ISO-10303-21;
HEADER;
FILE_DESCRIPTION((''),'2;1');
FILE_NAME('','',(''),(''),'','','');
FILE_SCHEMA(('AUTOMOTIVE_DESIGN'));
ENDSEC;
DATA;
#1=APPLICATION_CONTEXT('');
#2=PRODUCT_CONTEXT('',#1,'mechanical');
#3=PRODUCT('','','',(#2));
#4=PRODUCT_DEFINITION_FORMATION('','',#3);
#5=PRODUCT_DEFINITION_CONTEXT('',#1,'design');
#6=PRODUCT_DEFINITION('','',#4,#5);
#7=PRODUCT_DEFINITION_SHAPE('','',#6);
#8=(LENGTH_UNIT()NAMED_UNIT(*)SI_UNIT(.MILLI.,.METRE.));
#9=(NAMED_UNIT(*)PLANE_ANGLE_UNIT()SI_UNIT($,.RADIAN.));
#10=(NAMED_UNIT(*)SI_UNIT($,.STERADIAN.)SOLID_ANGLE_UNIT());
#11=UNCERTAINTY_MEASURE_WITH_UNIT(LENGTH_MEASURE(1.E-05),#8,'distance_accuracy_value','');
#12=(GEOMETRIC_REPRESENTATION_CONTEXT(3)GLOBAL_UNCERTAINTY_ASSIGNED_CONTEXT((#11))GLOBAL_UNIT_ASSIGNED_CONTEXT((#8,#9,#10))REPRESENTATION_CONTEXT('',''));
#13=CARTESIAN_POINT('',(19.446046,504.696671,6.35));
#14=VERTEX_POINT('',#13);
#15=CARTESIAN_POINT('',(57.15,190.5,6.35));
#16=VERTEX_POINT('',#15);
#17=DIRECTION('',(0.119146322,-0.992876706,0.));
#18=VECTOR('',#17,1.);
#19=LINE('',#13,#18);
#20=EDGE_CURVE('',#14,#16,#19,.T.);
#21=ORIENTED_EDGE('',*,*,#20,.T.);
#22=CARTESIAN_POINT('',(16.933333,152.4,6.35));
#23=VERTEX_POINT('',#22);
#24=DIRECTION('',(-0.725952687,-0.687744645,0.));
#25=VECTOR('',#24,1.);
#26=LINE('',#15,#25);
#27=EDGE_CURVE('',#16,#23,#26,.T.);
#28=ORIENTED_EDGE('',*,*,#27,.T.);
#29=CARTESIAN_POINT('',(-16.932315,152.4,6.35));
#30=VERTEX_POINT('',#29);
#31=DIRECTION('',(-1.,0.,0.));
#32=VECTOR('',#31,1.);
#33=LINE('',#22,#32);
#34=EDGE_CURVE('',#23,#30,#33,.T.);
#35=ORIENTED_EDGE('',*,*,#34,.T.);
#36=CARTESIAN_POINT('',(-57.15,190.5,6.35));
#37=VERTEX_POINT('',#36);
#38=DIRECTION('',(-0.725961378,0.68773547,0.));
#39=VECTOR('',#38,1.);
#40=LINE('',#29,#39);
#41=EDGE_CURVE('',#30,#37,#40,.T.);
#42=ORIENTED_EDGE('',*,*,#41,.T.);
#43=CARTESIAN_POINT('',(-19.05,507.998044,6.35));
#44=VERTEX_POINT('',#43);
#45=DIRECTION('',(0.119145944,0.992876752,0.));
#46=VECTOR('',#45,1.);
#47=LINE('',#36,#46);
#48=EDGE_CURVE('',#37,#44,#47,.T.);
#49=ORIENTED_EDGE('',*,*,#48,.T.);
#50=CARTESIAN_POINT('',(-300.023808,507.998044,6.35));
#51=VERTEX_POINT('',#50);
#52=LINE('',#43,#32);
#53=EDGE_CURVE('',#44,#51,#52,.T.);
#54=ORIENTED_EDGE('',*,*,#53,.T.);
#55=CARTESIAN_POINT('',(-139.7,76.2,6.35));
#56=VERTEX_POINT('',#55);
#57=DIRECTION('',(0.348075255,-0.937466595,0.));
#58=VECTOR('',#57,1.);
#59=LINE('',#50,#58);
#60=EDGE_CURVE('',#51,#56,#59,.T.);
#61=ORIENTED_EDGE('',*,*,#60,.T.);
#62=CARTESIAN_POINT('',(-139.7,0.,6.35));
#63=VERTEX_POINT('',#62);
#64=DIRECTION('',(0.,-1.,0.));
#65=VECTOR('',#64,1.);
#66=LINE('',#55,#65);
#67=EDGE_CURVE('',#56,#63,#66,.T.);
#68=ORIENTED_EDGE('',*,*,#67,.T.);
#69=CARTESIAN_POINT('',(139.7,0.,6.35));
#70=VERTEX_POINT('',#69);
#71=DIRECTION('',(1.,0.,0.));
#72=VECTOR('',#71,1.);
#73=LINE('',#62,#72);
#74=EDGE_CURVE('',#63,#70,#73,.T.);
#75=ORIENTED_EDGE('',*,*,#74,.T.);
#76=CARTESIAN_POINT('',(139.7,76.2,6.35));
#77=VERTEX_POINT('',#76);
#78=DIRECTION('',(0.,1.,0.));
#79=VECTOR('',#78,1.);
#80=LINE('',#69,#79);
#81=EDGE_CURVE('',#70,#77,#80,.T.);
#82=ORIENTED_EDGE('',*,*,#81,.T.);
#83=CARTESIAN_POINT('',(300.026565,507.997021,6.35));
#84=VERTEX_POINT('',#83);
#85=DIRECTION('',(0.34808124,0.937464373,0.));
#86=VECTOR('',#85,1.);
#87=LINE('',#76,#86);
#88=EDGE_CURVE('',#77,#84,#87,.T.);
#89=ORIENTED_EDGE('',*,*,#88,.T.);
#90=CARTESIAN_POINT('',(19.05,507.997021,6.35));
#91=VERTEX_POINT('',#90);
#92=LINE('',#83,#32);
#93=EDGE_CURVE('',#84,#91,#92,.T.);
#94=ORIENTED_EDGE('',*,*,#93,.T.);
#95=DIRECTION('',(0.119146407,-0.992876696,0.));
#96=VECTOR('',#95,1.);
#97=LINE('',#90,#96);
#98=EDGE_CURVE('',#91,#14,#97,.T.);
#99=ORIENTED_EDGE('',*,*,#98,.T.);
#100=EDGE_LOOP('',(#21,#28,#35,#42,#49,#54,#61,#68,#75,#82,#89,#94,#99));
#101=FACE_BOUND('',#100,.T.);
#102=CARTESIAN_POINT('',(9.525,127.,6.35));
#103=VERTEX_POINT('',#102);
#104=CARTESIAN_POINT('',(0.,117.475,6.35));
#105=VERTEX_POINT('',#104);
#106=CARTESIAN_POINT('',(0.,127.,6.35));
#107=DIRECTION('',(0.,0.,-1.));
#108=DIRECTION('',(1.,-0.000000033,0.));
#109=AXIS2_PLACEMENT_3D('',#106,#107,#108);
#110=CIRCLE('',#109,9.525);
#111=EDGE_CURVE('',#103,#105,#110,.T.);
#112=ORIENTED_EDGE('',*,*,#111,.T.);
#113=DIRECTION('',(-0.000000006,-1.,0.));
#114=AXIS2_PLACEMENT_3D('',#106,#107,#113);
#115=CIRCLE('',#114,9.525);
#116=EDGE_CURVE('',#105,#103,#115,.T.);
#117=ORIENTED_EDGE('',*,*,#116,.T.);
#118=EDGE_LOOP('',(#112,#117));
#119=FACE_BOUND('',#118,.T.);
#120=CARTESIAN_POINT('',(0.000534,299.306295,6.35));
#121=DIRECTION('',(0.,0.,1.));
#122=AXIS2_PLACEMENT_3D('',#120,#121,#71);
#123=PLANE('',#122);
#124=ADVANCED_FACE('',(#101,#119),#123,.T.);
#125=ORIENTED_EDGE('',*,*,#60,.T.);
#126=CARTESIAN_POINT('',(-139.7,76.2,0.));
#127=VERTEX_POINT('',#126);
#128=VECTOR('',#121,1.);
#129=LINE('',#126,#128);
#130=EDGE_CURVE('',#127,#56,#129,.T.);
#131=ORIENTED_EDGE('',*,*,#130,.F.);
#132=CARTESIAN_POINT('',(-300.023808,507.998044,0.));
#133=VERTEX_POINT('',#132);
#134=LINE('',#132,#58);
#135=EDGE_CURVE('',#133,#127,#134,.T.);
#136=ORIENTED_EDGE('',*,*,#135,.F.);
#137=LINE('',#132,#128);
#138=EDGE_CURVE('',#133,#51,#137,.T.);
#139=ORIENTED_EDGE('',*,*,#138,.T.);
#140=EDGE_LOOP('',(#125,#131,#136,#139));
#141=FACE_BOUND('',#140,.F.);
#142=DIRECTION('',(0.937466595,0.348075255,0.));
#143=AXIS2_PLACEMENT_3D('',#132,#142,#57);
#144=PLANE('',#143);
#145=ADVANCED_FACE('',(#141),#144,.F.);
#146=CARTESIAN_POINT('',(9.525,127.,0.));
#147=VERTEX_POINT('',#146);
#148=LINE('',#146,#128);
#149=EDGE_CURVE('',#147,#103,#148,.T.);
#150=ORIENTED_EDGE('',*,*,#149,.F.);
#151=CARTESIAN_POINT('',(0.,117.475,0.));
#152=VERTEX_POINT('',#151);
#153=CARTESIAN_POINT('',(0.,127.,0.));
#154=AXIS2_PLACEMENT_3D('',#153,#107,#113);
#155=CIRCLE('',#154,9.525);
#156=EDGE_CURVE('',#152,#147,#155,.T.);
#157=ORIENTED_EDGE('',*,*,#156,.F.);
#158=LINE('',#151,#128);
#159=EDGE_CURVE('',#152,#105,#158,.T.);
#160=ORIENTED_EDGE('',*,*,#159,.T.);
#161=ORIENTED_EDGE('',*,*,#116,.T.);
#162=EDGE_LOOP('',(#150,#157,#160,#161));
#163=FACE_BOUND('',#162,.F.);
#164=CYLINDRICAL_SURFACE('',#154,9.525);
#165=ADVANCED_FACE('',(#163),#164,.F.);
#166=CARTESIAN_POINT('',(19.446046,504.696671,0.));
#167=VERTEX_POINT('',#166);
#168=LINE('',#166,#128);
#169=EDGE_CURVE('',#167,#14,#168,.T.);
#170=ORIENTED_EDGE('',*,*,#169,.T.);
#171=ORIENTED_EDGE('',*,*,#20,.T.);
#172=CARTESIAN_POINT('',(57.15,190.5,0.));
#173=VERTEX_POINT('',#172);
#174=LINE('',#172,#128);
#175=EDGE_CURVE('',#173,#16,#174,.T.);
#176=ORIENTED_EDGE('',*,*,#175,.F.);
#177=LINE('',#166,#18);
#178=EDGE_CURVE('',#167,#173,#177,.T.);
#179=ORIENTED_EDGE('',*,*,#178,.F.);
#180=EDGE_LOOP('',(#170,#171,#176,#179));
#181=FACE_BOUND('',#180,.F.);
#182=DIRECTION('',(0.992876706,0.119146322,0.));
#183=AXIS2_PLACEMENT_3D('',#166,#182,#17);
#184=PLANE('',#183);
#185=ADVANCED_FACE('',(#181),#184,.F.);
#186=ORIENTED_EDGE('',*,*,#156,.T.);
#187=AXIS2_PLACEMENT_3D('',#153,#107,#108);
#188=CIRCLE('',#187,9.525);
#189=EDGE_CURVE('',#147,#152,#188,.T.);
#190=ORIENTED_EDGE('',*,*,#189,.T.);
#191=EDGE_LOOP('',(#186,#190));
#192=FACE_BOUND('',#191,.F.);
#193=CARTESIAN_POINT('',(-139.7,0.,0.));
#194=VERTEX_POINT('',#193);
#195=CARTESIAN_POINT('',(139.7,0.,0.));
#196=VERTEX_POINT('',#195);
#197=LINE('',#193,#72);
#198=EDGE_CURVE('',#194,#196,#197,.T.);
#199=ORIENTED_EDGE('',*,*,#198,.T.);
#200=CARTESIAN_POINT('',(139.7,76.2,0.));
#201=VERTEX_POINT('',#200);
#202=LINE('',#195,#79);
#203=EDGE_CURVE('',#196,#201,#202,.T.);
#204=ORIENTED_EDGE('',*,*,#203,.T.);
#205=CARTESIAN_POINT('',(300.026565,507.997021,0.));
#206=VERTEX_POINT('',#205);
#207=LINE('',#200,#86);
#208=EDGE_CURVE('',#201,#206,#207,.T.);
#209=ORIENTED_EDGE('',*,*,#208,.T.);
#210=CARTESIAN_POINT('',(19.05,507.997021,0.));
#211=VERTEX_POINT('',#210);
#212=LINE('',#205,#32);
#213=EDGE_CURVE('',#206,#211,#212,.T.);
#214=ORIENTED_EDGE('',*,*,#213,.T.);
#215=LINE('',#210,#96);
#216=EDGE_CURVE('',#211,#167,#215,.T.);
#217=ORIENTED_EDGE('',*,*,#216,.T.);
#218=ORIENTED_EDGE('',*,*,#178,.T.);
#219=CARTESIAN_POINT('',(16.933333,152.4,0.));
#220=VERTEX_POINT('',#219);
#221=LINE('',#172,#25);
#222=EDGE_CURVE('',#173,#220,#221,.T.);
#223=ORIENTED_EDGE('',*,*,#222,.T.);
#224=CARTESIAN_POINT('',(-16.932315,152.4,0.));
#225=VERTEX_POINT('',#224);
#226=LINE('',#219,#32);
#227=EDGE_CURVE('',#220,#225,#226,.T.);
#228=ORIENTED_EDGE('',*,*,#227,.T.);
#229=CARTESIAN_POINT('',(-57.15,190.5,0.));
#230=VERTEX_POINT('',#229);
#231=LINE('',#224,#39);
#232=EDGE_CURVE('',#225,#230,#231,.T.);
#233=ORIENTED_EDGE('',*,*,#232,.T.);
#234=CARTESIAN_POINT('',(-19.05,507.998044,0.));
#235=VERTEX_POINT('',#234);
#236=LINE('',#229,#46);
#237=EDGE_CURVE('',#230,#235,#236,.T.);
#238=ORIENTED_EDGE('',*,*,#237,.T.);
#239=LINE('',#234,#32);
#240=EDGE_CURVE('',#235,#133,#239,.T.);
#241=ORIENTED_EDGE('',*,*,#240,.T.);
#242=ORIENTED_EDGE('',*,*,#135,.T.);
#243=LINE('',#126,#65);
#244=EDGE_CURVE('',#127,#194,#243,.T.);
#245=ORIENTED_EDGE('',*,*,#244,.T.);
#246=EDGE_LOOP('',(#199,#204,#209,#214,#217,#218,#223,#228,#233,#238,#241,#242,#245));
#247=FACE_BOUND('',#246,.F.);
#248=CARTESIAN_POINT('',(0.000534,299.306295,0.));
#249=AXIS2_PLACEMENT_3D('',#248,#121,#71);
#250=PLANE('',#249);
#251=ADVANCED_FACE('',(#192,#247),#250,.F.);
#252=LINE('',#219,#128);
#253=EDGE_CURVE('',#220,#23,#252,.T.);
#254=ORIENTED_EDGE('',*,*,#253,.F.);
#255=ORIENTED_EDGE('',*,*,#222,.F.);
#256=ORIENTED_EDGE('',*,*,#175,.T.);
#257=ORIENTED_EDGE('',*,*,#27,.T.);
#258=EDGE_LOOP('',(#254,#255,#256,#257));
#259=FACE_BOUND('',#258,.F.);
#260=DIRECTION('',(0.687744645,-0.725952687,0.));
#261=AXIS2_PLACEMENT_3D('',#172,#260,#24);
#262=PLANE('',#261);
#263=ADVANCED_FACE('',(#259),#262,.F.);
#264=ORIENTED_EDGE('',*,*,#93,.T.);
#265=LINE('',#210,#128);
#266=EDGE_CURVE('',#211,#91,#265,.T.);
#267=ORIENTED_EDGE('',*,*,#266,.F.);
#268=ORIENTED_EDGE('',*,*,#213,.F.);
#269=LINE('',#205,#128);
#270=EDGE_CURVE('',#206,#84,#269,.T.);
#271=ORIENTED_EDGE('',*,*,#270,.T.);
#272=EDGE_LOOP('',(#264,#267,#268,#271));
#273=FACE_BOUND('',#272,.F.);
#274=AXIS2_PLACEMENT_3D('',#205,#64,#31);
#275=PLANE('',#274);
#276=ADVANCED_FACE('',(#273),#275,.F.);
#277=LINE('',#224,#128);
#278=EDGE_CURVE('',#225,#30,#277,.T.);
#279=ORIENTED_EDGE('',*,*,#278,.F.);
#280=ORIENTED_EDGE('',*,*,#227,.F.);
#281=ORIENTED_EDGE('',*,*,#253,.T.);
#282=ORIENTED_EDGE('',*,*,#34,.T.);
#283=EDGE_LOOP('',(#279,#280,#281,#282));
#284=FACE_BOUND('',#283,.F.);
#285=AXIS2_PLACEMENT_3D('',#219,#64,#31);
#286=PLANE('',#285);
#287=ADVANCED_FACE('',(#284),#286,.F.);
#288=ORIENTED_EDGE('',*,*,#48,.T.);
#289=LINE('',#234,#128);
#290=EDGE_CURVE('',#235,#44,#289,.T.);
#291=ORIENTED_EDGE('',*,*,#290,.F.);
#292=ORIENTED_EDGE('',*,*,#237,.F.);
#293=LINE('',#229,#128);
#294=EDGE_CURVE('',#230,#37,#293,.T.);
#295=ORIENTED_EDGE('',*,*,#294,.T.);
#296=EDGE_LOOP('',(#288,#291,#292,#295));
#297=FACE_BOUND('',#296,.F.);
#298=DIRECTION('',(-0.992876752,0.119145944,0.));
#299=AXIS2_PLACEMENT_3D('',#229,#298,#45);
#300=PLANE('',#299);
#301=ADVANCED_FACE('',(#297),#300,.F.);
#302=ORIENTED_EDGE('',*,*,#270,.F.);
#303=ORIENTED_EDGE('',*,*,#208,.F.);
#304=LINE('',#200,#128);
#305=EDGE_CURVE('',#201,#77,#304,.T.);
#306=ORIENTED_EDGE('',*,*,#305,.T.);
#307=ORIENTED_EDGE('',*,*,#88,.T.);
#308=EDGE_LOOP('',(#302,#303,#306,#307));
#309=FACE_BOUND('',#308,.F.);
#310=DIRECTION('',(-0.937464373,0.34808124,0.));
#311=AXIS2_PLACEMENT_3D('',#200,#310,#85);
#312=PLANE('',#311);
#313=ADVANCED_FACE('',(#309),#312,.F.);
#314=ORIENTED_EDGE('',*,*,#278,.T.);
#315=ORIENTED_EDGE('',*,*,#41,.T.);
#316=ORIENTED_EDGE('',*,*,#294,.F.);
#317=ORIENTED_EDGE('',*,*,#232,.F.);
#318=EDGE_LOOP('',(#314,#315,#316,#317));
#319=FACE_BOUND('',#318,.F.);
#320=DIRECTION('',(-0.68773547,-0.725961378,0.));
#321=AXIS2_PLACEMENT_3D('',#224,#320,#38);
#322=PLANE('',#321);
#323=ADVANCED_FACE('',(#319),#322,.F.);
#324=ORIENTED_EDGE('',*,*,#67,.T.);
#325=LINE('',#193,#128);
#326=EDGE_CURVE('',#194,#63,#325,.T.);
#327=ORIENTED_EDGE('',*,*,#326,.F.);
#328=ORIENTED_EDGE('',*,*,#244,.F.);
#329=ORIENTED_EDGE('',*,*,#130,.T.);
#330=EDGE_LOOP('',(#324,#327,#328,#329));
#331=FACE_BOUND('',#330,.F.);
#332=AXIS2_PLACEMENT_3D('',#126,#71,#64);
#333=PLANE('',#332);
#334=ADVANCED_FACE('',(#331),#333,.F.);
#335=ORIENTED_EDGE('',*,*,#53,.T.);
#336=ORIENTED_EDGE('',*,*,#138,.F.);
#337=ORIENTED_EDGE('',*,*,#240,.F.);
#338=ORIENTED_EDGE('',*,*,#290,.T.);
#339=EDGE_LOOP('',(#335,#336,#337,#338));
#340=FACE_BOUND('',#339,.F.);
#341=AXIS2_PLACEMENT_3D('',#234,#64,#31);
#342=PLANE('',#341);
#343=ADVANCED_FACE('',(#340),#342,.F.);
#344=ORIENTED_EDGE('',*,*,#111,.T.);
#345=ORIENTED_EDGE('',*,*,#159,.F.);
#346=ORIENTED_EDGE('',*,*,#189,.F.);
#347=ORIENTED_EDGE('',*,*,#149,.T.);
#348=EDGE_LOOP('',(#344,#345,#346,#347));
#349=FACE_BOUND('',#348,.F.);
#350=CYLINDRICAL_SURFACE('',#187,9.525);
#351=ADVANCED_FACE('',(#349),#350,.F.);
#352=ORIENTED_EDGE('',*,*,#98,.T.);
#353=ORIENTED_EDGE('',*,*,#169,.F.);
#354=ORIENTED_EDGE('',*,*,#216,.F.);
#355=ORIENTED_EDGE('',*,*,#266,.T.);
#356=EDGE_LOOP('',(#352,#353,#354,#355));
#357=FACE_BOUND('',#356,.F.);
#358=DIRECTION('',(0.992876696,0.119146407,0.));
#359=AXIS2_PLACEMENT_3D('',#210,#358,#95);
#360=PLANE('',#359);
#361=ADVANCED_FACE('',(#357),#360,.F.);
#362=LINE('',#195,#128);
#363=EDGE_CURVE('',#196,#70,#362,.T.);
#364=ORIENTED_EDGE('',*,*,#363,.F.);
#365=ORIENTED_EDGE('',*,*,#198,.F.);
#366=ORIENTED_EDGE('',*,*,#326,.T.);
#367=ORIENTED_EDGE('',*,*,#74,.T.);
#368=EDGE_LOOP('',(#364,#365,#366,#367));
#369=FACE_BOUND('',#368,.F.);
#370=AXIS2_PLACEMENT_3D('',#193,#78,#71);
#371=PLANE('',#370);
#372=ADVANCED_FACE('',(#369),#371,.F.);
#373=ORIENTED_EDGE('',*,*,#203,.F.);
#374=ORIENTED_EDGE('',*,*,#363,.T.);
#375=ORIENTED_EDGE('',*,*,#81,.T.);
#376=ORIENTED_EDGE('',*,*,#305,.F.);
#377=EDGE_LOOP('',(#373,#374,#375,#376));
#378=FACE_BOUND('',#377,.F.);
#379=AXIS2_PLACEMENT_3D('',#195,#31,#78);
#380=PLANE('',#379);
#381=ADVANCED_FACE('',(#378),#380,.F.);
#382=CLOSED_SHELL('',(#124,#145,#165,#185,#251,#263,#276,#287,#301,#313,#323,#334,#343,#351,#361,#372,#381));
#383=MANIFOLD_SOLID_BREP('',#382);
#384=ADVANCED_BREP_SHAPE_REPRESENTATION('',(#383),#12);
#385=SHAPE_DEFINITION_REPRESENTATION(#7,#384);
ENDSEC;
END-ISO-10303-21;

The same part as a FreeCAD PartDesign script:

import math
import FreeCAD as App
import Part
import Sketcher
from FreeCAD import Vector
Q = App.Units.Quantity

doc = App.newDocument("Part")
params = doc.addObject("Spreadsheet::Sheet", "Params")
for row, (alias, value) in enumerate([
    ("sketch1_width", "11 in"),
    ("sketch1_height", "3 in"),
    ("sketch1_radius", "0.375 in"),
    ("pad1_length", "0.25 in"),
], start=1):
    params.set(f"A{row}", alias)
    params.set(f"B{row}", "=" + value)
    params.setAlias(f"B{row}", alias)

body = doc.addObject("PartDesign::Body", "Body")

# Sketch on XY plane
sketch1 = doc.addObject("Sketcher::SketchObject", "Sketch")
body.addObject(sketch1)
sketch1.AttachmentSupport = (doc.XY_Plane, [""])
sketch1.MapMode = "FlatFace"
sketch1.addGeometry([
    Part.LineSegment(Vector(-139.7, 0, 0), Vector(139.7, 0, 0)),  # 0
    Part.LineSegment(Vector(139.7, 0, 0), Vector(139.7, 76.2, 0)),  # 1
    Part.LineSegment(Vector(139.7, 76.2, 0), Vector(300.026565, 507.997021, 0)),  # 2
    Part.LineSegment(Vector(300.026565, 507.997021, 0), Vector(19.05, 507.997021, 0)),  # 3
    Part.LineSegment(Vector(19.05, 507.997021, 0), Vector(19.446046, 504.696671, 0)),  # 4
    Part.LineSegment(Vector(19.446046, 504.696671, 0), Vector(57.15, 190.5, 0)),  # 5
    Part.LineSegment(Vector(57.15, 190.5, 0), Vector(16.933333, 152.4, 0)),  # 6
    Part.LineSegment(Vector(16.933333, 152.4, 0), Vector(-16.932315, 152.4, 0)),  # 7
    Part.LineSegment(Vector(-16.932315, 152.4, 0), Vector(-57.15, 190.5, 0)),  # 8
    Part.LineSegment(Vector(-57.15, 190.5, 0), Vector(-19.05, 507.998044, 0)),  # 9
    Part.LineSegment(Vector(-19.05, 507.998044, 0), Vector(-300.023808, 507.998044, 0)),  # 10
    Part.LineSegment(Vector(-300.023808, 507.998044, 0), Vector(-139.7, 76.2, 0)),  # 11
    Part.LineSegment(Vector(-139.7, 76.2, 0), Vector(-139.7, 0, 0)),  # 12
    Part.ArcOfCircle(Part.Circle(Vector(0, 127, 0), Vector(0, 0, 1), 9.525), math.radians(0), math.radians(270)),  # 13
    Part.ArcOfCircle(Part.Circle(Vector(0, 127, 0), Vector(0, 0, 1), 9.525), math.radians(-89.999998), math.radians(-0.000002)),  # 14
], False)
sketch1.addConstraint([
    Sketcher.Constraint("Coincident", 0, 2, 1, 1),
    Sketcher.Constraint("Coincident", 1, 2, 2, 1),
    Sketcher.Constraint("Coincident", 2, 2, 3, 1),
    Sketcher.Constraint("Coincident", 3, 2, 4, 1),
    Sketcher.Constraint("Coincident", 4, 2, 5, 1),
    Sketcher.Constraint("Coincident", 5, 2, 6, 1),
    Sketcher.Constraint("Coincident", 6, 2, 7, 1),
    Sketcher.Constraint("Coincident", 7, 2, 8, 1),
    Sketcher.Constraint("Coincident", 8, 2, 9, 1),
    Sketcher.Constraint("Coincident", 9, 2, 10, 1),
    Sketcher.Constraint("Coincident", 10, 2, 11, 1),
    Sketcher.Constraint("Coincident", 11, 2, 12, 1),
    Sketcher.Constraint("Coincident", 12, 2, 0, 1),
    Sketcher.Constraint("Tangent", 13, 1, 14, 2),
    Sketcher.Constraint("Coincident", 14, 1, 13, 2),
    Sketcher.Constraint("Horizontal", 0),
    Sketcher.Constraint("Vertical", 1),
    Sketcher.Constraint("Horizontal", 3),
    Sketcher.Constraint("Horizontal", 7),
    Sketcher.Constraint("Horizontal", 10),
    Sketcher.Constraint("Vertical", 12),
    Sketcher.Constraint("Symmetric", 0, 2, 12, 2, -1, 1),
    Sketcher.Constraint("Symmetric", 5, 2, 8, 2, -2),
    Sketcher.Constraint("PointOnObject", 13, 3, -2),
    Sketcher.Constraint("PointOnObject", 14, 1, -2),
    Sketcher.Constraint("Parallel", 4, 5),
    Sketcher.Constraint("Horizontal", 1, 2, 11, 2),
    Sketcher.Constraint("Horizontal", 14, 3, 13, 1),
    Sketcher.Constraint("Equal", 2, 11),
    Sketcher.Constraint("DistanceX", 0, 1, 0, 2, Q("11 in")),
    Sketcher.Constraint("DistanceY", 1, 1, 1, 2, Q("3 in")),
    Sketcher.Constraint("DistanceY", -1, 1, 13, 3, Q("5 in")),
    Sketcher.Constraint("DistanceY", -1, 1, 6, 2, Q("6 in")),
    Sketcher.Constraint("Radius", 13, Q("0.375 in")),
    Sketcher.Constraint("DistanceX", 9, 2, 5, 2, Q("3 in")),
    Sketcher.Constraint("DistanceY", -1, 1, 5, 2, Q("7.5 in")),
    Sketcher.Constraint("DistanceX", 8, 2, 5, 2, Q("4.5 in")),
    Sketcher.Constraint("DistanceX", 9, 2, 3, 2, Q("1.5 in")),
    Sketcher.Constraint("Angle", 2, Q("69.63 deg")),
    Sketcher.Constraint("Distance", 4, 3.324028),
    Sketcher.Constraint("Distance", 6, 55.398468),
    Sketcher.Constraint("DistanceX", 3, 2, 3, 1, 280.976565),
    Sketcher.Constraint("DistanceX", 7, 2, 7, 1, 33.865648),
    Sketcher.Constraint("DistanceX", 10, 2, 10, 1, 280.973808),
])
sketch1.setExpression("Constraints[29]", "Params.sketch1_width")
sketch1.setExpression("Constraints[30]", "Params.sketch1_height")
sketch1.setExpression("Constraints[33]", "Params.sketch1_radius")
pad1 = doc.addObject("PartDesign::Pad", "Pad")
body.addObject(pad1)
pad1.Profile = sketch1
pad1.setExpression("Length", "Params.pad1_length")

doc.recompute()
